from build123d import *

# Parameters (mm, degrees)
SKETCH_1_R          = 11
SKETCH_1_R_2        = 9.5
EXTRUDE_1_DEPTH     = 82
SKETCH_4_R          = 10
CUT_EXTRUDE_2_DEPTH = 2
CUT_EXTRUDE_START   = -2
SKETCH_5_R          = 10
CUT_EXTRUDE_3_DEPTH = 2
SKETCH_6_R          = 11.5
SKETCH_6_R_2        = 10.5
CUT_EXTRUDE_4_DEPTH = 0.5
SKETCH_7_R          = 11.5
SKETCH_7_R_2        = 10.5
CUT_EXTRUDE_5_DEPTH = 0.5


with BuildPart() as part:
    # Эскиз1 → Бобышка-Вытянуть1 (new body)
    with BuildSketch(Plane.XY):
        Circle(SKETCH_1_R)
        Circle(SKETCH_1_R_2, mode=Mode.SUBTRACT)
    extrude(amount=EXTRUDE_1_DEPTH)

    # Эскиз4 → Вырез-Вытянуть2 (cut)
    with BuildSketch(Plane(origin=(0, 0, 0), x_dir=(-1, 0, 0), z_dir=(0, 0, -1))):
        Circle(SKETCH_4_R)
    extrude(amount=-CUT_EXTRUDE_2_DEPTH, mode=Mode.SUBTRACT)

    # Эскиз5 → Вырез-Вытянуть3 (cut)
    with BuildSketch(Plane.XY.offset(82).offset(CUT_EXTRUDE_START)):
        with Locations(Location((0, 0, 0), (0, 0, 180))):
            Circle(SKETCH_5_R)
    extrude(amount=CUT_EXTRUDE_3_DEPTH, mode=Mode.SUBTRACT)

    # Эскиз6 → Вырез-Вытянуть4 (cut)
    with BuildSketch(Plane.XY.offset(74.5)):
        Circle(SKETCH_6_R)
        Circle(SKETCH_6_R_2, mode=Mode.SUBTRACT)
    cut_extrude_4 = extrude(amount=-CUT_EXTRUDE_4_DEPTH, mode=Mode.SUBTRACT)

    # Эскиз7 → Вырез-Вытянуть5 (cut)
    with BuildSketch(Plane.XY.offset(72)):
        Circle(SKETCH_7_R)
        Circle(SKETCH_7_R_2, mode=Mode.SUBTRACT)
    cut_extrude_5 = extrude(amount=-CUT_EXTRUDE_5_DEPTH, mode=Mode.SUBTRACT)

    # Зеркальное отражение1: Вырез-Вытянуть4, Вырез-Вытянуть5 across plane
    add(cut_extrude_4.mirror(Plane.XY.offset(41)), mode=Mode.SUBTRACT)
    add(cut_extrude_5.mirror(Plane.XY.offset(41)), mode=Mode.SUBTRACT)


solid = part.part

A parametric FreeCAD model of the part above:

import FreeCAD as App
import Part
import Sketcher
from FreeCAD import Vector

doc = App.newDocument("Part")
params = doc.addObject("Spreadsheet::Sheet", "Params")
for row, (alias, value) in enumerate([
    ("sketch1_diameter", "22 mm"),
    ("sketch1_diameter2", "19 mm"),
    ("pad1_length", "82 mm"),
    ("sketch2_diameter", "20 mm"),
    ("pocket1_length", "2 mm"),
    ("sketch3_diameter", "20 mm"),
    ("pocket2_length", "2 mm"),
    ("sketch4_diameter", "23 mm"),
    ("sketch4_diameter2", "21 mm"),
    ("pocket3_length", "0.5 mm"),
    ("sketch5_diameter", "23 mm"),
    ("sketch5_diameter2", "21 mm"),
    ("pocket4_length", "0.5 mm"),
], start=1):
    params.set(f"A{row}", alias)
    params.set(f"B{row}", "=" + value)
    params.setAlias(f"B{row}", alias)

body = doc.addObject("PartDesign::Body", "Body")

# Sketch on XY plane
sketch1 = body.newObject("Sketcher::SketchObject", "Sketch")
sketch1.AttachmentSupport = (doc.getObject("XY_Plane"), [""])
sketch1.MapMode = "FlatFace"
sketch1.addGeometry(Part.Circle(Vector(0, 0, 0), Vector(0, 0, 1), 11), False)
sketch1.addGeometry(Part.Circle(Vector(0, 0, 0), Vector(0, 0, 1), 10), False)
sketch1.addConstraint(Sketcher.Constraint("Coincident", 0, 3, -1, 1))
sketch1.addConstraint(Sketcher.Constraint("Coincident", 1, 3, -1, 1))
sketch1.addConstraint(Sketcher.Constraint("Diameter", 0, 22.0))
sketch1.addConstraint(Sketcher.Constraint("Diameter", 1, 19.0))
sketch1.setExpression("Constraints[2]", "Params.sketch1_diameter")
sketch1.setExpression("Constraints[3]", "Params.sketch1_diameter2")
pad1 = body.newObject("PartDesign::Pad", "Pad")
pad1.Profile = sketch1
pad1.setExpression("Length", "Params.pad1_length")

# Sketch on XY plane
sketch2 = body.newObject("Sketcher::SketchObject", "Sketch001")
sketch2.AttachmentSupport = (doc.getObject("XY_Plane"), [""])
sketch2.MapMode = "FlatFace"
sketch2.addGeometry(Part.Circle(Vector(0, 0, 0), Vector(0, 0, 1), 10), False)
sketch2.addConstraint(Sketcher.Constraint("Coincident", 0, 3, -1, 1))
sketch2.addConstraint(Sketcher.Constraint("Diameter", 0, 20.0))
sketch2.setExpression("Constraints[1]", "Params.sketch2_diameter")
pocket1 = body.newObject("PartDesign::Pocket", "Pocket")
pocket1.Profile = sketch2
pocket1.setExpression("Length", "Params.pocket1_length")
pocket1.Reversed = True

# Sketch on XY plane
sketch3 = body.newObject("Sketcher::SketchObject", "Sketch002")
sketch3.AttachmentSupport = (doc.getObject("XY_Plane"), [""])
sketch3.MapMode = "FlatFace"
sketch3.AttachmentOffset = App.Placement(Vector(0, 0, 80), App.Rotation())
sketch3.addGeometry(Part.Circle(Vector(0, 0, 0), Vector(0, 0, 1), 10), False)
sketch3.addConstraint(Sketcher.Constraint("Coincident", 0, 3, -1, 1))
sketch3.addConstraint(Sketcher.Constraint("Diameter", 0, 20.0))
sketch3.setExpression("Constraints[1]", "Params.sketch3_diameter")
pocket2 = body.newObject("PartDesign::Pocket", "Pocket001")
pocket2.Profile = sketch3
pocket2.setExpression("Length", "Params.pocket2_length")
pocket2.Reversed = True

# Sketch on XY plane
sketch4 = body.newObject("Sketcher::SketchObject", "Sketch003")
sketch4.AttachmentSupport = (doc.getObject("XY_Plane"), [""])
sketch4.MapMode = "FlatFace"
sketch4.AttachmentOffset = App.Placement(Vector(0, 0, 74.5), App.Rotation())
sketch4.addGeometry(Part.Circle(Vector(0, 0, 0), Vector(0, 0, 1), 12), False)
sketch4.addGeometry(Part.Circle(Vector(0, 0, 0), Vector(0, 0, 1), 10), False)
sketch4.addConstraint(Sketcher.Constraint("Coincident", 0, 3, -1, 1))
sketch4.addConstraint(Sketcher.Constraint("Coincident", 1, 3, -1, 1))
sketch4.addConstraint(Sketcher.Constraint("Diameter", 0, 23.0))
sketch4.addConstraint(Sketcher.Constraint("Diameter", 1, 21.0))
sketch4.setExpression("Constraints[2]", "Params.sketch4_diameter")
sketch4.setExpression("Constraints[3]", "Params.sketch4_diameter2")
pocket3 = body.newObject("PartDesign::Pocket", "Pocket002")
pocket3.Profile = sketch4
pocket3.setExpression("Length", "Params.pocket3_length")

# Sketch on XY plane
sketch5 = body.newObject("Sketcher::SketchObject", "Sketch004")
sketch5.AttachmentSupport = (doc.getObject("XY_Plane"), [""])
sketch5.MapMode = "FlatFace"
sketch5.AttachmentOffset = App.Placement(Vector(0, 0, 72), App.Rotation())
sketch5.addGeometry(Part.Circle(Vector(0, 0, 0), Vector(0, 0, 1), 12), False)
sketch5.addGeometry(Part.Circle(Vector(0, 0, 0), Vector(0, 0, 1), 10), False)
sketch5.addConstraint(Sketcher.Constraint("Coincident", 0, 3, -1, 1))
sketch5.addConstraint(Sketcher.Constraint("Coincident", 1, 3, -1, 1))
sketch5.addConstraint(Sketcher.Constraint("Diameter", 0, 23.0))
sketch5.addConstraint(Sketcher.Constraint("Diameter", 1, 21.0))
sketch5.setExpression("Constraints[2]", "Params.sketch5_diameter")
sketch5.setExpression("Constraints[3]", "Params.sketch5_diameter2")
pocket4 = body.newObject("PartDesign::Pocket", "Pocket003")
pocket4.Profile = sketch5
pocket4.setExpression("Length", "Params.pocket4_length")
doc.recompute()

datumplane = body.newObject("PartDesign::Plane", "DatumPlane")
datumplane.AttachmentSupport = (doc.getObject("XY_Plane"), [""])
datumplane.MapMode = "FlatFace"
datumplane.AttachmentOffset = App.Placement(Vector(0, 0, 41), App.Rotation())
mirrored = body.newObject("PartDesign::Mirrored", "Mirrored")
mirrored.Originals = [pocket3, pocket4]
mirrored.MirrorPlane = (datumplane, [""])
body.Tip = mirrored

doc.recompute()
